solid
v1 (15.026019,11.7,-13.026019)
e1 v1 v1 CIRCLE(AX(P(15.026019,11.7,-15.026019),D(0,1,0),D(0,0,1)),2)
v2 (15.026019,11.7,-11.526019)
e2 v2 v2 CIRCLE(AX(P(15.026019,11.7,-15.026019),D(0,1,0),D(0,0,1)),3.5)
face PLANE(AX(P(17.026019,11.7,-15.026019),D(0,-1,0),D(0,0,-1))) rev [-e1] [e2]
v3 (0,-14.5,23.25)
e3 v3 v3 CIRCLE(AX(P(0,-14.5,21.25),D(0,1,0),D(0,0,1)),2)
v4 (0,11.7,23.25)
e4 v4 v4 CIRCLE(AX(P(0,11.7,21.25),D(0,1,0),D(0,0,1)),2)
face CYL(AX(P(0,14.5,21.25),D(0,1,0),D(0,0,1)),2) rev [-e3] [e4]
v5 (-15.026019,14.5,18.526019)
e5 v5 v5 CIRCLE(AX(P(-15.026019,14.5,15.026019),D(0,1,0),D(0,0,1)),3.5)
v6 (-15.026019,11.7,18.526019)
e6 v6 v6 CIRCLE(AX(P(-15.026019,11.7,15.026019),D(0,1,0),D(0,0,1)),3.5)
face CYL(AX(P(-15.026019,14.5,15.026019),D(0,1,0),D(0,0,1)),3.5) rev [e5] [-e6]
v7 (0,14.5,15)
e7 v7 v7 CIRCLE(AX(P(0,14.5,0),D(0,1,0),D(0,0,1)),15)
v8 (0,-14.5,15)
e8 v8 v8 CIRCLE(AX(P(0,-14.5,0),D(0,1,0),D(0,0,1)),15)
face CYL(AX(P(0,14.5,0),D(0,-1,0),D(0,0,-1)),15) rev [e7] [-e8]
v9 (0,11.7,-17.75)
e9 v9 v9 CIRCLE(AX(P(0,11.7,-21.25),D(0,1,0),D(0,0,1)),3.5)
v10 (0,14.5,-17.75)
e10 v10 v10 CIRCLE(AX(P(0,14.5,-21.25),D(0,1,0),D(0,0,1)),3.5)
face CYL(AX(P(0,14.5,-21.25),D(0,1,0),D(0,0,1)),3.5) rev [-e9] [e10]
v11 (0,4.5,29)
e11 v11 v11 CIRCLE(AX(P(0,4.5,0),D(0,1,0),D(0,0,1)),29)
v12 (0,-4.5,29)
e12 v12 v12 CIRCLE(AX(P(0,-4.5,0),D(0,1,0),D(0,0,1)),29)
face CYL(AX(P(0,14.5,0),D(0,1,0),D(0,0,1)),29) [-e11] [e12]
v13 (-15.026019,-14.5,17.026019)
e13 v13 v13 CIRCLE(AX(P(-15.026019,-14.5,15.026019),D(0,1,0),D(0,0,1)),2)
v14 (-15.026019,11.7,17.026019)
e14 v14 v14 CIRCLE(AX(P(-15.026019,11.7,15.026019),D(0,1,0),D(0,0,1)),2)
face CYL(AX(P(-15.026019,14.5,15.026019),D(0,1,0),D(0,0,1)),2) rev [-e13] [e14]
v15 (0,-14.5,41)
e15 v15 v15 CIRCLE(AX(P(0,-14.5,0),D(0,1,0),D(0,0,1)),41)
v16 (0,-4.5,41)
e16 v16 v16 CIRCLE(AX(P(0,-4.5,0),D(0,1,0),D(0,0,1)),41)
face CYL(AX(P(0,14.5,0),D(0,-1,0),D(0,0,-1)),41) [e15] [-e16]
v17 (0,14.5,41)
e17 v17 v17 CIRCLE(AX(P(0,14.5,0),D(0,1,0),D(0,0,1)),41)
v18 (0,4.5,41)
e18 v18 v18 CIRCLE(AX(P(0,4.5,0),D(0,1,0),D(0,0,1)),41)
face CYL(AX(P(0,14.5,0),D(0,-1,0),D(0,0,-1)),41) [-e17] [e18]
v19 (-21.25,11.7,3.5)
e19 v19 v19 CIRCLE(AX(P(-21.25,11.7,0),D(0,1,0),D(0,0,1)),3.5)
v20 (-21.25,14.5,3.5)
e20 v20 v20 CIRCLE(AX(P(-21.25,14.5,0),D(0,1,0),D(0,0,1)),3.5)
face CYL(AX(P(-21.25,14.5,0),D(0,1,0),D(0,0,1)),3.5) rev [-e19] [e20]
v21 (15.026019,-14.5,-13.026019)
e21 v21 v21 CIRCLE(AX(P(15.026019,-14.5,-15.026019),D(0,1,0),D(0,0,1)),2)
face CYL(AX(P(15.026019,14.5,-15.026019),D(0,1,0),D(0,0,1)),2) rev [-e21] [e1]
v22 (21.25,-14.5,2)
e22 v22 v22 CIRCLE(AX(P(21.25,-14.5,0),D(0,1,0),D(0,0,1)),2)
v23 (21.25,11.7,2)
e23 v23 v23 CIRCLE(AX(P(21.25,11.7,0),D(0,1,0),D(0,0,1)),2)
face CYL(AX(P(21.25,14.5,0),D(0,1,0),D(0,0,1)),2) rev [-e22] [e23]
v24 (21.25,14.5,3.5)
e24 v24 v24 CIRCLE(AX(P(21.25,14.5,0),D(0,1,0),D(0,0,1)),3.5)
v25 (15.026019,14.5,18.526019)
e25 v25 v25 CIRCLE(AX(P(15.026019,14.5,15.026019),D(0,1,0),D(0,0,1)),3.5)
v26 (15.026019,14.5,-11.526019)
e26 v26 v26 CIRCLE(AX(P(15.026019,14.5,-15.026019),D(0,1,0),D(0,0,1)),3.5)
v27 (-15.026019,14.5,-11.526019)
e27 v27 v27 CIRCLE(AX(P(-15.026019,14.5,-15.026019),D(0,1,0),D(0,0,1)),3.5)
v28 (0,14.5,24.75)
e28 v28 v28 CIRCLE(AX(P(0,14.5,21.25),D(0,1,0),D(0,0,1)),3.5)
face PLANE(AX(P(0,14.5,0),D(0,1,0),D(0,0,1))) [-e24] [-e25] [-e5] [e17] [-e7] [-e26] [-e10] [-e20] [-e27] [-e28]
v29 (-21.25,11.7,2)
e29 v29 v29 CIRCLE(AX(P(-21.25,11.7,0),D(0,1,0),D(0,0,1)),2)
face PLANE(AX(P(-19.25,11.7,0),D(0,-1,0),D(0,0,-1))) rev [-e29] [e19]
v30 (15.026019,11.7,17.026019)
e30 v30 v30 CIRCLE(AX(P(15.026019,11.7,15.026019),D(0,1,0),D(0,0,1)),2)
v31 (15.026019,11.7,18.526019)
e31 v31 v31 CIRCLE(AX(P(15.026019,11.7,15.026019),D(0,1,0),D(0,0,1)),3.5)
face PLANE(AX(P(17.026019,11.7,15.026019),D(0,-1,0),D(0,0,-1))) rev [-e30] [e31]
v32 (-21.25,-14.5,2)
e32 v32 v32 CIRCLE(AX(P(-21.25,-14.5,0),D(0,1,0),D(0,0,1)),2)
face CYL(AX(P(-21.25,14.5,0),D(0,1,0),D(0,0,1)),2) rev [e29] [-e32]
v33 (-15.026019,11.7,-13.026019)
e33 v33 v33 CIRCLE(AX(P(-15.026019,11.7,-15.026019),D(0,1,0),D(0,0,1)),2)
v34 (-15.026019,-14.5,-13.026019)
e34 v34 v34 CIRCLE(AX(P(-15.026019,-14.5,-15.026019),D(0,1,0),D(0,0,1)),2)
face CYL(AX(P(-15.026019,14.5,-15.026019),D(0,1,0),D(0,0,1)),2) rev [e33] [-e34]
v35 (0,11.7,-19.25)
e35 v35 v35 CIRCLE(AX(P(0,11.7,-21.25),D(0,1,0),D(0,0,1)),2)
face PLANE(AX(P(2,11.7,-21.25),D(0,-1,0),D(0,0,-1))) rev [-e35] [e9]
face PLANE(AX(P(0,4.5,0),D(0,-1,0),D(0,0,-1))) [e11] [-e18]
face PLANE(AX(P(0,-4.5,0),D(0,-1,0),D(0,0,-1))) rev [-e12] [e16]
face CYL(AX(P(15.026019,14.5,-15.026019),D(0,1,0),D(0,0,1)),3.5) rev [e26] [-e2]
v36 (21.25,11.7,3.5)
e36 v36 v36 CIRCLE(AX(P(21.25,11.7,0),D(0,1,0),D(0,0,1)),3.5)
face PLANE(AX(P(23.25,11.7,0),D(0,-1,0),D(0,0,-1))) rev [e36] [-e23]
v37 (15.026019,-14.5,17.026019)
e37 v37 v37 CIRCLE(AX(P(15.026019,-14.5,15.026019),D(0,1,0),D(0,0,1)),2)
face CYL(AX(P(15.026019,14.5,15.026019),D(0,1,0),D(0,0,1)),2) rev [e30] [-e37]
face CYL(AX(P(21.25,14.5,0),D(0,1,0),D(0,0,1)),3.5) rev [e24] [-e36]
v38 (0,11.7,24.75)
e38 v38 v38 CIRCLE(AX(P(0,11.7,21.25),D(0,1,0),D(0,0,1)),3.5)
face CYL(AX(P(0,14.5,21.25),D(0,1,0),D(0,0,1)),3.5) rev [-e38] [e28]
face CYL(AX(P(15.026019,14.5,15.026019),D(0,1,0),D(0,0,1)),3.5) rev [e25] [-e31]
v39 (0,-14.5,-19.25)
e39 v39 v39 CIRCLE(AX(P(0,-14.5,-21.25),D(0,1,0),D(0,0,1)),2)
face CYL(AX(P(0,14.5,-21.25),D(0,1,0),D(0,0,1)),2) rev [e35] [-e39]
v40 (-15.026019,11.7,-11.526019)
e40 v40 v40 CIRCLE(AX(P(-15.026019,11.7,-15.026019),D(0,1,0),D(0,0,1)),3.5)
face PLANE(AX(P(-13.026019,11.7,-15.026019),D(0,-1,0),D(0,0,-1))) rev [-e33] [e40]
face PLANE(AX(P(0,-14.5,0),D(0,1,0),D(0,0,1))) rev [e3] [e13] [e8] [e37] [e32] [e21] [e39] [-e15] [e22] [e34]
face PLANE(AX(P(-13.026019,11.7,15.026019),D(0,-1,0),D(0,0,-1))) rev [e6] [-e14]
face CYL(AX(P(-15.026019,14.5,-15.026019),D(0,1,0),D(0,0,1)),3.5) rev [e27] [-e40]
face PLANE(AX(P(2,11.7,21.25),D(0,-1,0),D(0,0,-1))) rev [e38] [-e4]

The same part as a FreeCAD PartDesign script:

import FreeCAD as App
import Part
import Sketcher
from FreeCAD import Vector

doc = App.newDocument("Part")
body = doc.addObject("PartDesign::Body", "Body")

sketch1 = body.newObject("Sketcher::SketchObject", "Sketch")
sketch1.AttachmentSupport = (doc.getObject("XZ_Plane"), [""])
sketch1.MapMode = "FlatFace"
sketch1.addGeometry([
    Part.Circle(Vector(0, 0, 0), Vector(0, 0, 1), 41),
    Part.Circle(Vector(0, 0, 0), Vector(0, 0, 1), 15),
], False)
sketch1.addConstraint([
    Sketcher.Constraint("Coincident", 0, 3, -1, 1),
    Sketcher.Constraint("Coincident", 1, 3, -1, 1),
    Sketcher.Constraint("Diameter", 0, 82.0),
    Sketcher.Constraint("Diameter", 1, 30.0),
])
pad1 = body.newObject("PartDesign::Pad", "Pad")
pad1.Profile = sketch1
pad1.Length = 29
pad1.Midplane = True

sketch2 = body.newObject("Sketcher::SketchObject", "Sketch001")
sketch2.AttachmentSupport = (doc.getObject("YZ_Plane"), [""])
sketch2.MapMode = "FlatFace"
sketch2.addGeometry([
    Part.LineSegment(Vector(4, -29, 0), Vector(-4, -29, 0)),
    Part.LineSegment(Vector(-4, -29, 0), Vector(-4, -41, 0)),
    Part.LineSegment(Vector(-4, -41, 0), Vector(4, -41, 0)),
    Part.LineSegment(Vector(4, -41, 0), Vector(4, -29, 0)),
], False)
sketch2.addConstraint([
    Sketcher.Constraint("Coincident", 0, 2, 1, 1),
    Sketcher.Constraint("Coincident", 1, 2, 2, 1),
    Sketcher.Constraint("Coincident", 2, 2, 3, 1),
    Sketcher.Constraint("Coincident", 3, 2, 0, 1),
    Sketcher.Constraint("Horizontal", 0),
    Sketcher.Constraint("Vertical", 1),
    Sketcher.Constraint("Horizontal", 2),
    Sketcher.Constraint("Vertical", 3),
    Sketcher.Constraint("DistanceX", 0, 2, 0, 1, 9.0),
    Sketcher.Constraint("DistanceY", 1, 2, 1, 1, 12.0),
    Sketcher.Constraint("DistanceY", 0, 2, -1, 1, 29.0),
    Sketcher.Constraint("DistanceX", 0, 2, -1, 1, 4.5),
])
groove = body.newObject("PartDesign::Groove", "Groove")
groove.Profile = sketch2
groove.ReferenceAxis = (sketch2, ["H_Axis"])
groove.Angle = 360

sketch3 = body.newObject("Sketcher::SketchObject", "Sketch002")
sketch3.AttachmentSupport = (doc.getObject("XZ_Plane"), [""])
sketch3.MapMode = "FlatFace"
sketch3.AttachmentOffset = App.Placement(Vector(0, 0, -14.5), App.Rotation())
sketch3.addGeometry(Part.Circle(Vector(0, -21.2, 0), Vector(0, 0, 1), 2), False)
sketch3.addConstraint([
    Sketcher.Constraint("PointOnObject", 0, 3, -2),
    Sketcher.Constraint("Diameter", 0, 4.0),
    Sketcher.Constraint("DistanceY", 0, 3, -1, 1, 21.25),
])
doc.recompute()
hole = body.newObject("PartDesign::Hole", "Hole")
hole.Profile = sketch3
hole.ThreadType = "None"
hole.Diameter = 4
hole.DepthType = "ThroughAll"
hole.HoleCutType = "Counterbore"
hole.HoleCutDiameter = 7
hole.HoleCutDepth = 2.8
hole.Reversed = True
doc.recompute()

polarpattern = body.newObject("PartDesign::PolarPattern", "PolarPattern")
polarpattern.Originals = [hole]
polarpattern.Axis = (doc.getObject("Y_Axis"), [""])
polarpattern.Angle = 360
polarpattern.Occurrences = 8
body.Tip = polarpattern

doc.recompute()
